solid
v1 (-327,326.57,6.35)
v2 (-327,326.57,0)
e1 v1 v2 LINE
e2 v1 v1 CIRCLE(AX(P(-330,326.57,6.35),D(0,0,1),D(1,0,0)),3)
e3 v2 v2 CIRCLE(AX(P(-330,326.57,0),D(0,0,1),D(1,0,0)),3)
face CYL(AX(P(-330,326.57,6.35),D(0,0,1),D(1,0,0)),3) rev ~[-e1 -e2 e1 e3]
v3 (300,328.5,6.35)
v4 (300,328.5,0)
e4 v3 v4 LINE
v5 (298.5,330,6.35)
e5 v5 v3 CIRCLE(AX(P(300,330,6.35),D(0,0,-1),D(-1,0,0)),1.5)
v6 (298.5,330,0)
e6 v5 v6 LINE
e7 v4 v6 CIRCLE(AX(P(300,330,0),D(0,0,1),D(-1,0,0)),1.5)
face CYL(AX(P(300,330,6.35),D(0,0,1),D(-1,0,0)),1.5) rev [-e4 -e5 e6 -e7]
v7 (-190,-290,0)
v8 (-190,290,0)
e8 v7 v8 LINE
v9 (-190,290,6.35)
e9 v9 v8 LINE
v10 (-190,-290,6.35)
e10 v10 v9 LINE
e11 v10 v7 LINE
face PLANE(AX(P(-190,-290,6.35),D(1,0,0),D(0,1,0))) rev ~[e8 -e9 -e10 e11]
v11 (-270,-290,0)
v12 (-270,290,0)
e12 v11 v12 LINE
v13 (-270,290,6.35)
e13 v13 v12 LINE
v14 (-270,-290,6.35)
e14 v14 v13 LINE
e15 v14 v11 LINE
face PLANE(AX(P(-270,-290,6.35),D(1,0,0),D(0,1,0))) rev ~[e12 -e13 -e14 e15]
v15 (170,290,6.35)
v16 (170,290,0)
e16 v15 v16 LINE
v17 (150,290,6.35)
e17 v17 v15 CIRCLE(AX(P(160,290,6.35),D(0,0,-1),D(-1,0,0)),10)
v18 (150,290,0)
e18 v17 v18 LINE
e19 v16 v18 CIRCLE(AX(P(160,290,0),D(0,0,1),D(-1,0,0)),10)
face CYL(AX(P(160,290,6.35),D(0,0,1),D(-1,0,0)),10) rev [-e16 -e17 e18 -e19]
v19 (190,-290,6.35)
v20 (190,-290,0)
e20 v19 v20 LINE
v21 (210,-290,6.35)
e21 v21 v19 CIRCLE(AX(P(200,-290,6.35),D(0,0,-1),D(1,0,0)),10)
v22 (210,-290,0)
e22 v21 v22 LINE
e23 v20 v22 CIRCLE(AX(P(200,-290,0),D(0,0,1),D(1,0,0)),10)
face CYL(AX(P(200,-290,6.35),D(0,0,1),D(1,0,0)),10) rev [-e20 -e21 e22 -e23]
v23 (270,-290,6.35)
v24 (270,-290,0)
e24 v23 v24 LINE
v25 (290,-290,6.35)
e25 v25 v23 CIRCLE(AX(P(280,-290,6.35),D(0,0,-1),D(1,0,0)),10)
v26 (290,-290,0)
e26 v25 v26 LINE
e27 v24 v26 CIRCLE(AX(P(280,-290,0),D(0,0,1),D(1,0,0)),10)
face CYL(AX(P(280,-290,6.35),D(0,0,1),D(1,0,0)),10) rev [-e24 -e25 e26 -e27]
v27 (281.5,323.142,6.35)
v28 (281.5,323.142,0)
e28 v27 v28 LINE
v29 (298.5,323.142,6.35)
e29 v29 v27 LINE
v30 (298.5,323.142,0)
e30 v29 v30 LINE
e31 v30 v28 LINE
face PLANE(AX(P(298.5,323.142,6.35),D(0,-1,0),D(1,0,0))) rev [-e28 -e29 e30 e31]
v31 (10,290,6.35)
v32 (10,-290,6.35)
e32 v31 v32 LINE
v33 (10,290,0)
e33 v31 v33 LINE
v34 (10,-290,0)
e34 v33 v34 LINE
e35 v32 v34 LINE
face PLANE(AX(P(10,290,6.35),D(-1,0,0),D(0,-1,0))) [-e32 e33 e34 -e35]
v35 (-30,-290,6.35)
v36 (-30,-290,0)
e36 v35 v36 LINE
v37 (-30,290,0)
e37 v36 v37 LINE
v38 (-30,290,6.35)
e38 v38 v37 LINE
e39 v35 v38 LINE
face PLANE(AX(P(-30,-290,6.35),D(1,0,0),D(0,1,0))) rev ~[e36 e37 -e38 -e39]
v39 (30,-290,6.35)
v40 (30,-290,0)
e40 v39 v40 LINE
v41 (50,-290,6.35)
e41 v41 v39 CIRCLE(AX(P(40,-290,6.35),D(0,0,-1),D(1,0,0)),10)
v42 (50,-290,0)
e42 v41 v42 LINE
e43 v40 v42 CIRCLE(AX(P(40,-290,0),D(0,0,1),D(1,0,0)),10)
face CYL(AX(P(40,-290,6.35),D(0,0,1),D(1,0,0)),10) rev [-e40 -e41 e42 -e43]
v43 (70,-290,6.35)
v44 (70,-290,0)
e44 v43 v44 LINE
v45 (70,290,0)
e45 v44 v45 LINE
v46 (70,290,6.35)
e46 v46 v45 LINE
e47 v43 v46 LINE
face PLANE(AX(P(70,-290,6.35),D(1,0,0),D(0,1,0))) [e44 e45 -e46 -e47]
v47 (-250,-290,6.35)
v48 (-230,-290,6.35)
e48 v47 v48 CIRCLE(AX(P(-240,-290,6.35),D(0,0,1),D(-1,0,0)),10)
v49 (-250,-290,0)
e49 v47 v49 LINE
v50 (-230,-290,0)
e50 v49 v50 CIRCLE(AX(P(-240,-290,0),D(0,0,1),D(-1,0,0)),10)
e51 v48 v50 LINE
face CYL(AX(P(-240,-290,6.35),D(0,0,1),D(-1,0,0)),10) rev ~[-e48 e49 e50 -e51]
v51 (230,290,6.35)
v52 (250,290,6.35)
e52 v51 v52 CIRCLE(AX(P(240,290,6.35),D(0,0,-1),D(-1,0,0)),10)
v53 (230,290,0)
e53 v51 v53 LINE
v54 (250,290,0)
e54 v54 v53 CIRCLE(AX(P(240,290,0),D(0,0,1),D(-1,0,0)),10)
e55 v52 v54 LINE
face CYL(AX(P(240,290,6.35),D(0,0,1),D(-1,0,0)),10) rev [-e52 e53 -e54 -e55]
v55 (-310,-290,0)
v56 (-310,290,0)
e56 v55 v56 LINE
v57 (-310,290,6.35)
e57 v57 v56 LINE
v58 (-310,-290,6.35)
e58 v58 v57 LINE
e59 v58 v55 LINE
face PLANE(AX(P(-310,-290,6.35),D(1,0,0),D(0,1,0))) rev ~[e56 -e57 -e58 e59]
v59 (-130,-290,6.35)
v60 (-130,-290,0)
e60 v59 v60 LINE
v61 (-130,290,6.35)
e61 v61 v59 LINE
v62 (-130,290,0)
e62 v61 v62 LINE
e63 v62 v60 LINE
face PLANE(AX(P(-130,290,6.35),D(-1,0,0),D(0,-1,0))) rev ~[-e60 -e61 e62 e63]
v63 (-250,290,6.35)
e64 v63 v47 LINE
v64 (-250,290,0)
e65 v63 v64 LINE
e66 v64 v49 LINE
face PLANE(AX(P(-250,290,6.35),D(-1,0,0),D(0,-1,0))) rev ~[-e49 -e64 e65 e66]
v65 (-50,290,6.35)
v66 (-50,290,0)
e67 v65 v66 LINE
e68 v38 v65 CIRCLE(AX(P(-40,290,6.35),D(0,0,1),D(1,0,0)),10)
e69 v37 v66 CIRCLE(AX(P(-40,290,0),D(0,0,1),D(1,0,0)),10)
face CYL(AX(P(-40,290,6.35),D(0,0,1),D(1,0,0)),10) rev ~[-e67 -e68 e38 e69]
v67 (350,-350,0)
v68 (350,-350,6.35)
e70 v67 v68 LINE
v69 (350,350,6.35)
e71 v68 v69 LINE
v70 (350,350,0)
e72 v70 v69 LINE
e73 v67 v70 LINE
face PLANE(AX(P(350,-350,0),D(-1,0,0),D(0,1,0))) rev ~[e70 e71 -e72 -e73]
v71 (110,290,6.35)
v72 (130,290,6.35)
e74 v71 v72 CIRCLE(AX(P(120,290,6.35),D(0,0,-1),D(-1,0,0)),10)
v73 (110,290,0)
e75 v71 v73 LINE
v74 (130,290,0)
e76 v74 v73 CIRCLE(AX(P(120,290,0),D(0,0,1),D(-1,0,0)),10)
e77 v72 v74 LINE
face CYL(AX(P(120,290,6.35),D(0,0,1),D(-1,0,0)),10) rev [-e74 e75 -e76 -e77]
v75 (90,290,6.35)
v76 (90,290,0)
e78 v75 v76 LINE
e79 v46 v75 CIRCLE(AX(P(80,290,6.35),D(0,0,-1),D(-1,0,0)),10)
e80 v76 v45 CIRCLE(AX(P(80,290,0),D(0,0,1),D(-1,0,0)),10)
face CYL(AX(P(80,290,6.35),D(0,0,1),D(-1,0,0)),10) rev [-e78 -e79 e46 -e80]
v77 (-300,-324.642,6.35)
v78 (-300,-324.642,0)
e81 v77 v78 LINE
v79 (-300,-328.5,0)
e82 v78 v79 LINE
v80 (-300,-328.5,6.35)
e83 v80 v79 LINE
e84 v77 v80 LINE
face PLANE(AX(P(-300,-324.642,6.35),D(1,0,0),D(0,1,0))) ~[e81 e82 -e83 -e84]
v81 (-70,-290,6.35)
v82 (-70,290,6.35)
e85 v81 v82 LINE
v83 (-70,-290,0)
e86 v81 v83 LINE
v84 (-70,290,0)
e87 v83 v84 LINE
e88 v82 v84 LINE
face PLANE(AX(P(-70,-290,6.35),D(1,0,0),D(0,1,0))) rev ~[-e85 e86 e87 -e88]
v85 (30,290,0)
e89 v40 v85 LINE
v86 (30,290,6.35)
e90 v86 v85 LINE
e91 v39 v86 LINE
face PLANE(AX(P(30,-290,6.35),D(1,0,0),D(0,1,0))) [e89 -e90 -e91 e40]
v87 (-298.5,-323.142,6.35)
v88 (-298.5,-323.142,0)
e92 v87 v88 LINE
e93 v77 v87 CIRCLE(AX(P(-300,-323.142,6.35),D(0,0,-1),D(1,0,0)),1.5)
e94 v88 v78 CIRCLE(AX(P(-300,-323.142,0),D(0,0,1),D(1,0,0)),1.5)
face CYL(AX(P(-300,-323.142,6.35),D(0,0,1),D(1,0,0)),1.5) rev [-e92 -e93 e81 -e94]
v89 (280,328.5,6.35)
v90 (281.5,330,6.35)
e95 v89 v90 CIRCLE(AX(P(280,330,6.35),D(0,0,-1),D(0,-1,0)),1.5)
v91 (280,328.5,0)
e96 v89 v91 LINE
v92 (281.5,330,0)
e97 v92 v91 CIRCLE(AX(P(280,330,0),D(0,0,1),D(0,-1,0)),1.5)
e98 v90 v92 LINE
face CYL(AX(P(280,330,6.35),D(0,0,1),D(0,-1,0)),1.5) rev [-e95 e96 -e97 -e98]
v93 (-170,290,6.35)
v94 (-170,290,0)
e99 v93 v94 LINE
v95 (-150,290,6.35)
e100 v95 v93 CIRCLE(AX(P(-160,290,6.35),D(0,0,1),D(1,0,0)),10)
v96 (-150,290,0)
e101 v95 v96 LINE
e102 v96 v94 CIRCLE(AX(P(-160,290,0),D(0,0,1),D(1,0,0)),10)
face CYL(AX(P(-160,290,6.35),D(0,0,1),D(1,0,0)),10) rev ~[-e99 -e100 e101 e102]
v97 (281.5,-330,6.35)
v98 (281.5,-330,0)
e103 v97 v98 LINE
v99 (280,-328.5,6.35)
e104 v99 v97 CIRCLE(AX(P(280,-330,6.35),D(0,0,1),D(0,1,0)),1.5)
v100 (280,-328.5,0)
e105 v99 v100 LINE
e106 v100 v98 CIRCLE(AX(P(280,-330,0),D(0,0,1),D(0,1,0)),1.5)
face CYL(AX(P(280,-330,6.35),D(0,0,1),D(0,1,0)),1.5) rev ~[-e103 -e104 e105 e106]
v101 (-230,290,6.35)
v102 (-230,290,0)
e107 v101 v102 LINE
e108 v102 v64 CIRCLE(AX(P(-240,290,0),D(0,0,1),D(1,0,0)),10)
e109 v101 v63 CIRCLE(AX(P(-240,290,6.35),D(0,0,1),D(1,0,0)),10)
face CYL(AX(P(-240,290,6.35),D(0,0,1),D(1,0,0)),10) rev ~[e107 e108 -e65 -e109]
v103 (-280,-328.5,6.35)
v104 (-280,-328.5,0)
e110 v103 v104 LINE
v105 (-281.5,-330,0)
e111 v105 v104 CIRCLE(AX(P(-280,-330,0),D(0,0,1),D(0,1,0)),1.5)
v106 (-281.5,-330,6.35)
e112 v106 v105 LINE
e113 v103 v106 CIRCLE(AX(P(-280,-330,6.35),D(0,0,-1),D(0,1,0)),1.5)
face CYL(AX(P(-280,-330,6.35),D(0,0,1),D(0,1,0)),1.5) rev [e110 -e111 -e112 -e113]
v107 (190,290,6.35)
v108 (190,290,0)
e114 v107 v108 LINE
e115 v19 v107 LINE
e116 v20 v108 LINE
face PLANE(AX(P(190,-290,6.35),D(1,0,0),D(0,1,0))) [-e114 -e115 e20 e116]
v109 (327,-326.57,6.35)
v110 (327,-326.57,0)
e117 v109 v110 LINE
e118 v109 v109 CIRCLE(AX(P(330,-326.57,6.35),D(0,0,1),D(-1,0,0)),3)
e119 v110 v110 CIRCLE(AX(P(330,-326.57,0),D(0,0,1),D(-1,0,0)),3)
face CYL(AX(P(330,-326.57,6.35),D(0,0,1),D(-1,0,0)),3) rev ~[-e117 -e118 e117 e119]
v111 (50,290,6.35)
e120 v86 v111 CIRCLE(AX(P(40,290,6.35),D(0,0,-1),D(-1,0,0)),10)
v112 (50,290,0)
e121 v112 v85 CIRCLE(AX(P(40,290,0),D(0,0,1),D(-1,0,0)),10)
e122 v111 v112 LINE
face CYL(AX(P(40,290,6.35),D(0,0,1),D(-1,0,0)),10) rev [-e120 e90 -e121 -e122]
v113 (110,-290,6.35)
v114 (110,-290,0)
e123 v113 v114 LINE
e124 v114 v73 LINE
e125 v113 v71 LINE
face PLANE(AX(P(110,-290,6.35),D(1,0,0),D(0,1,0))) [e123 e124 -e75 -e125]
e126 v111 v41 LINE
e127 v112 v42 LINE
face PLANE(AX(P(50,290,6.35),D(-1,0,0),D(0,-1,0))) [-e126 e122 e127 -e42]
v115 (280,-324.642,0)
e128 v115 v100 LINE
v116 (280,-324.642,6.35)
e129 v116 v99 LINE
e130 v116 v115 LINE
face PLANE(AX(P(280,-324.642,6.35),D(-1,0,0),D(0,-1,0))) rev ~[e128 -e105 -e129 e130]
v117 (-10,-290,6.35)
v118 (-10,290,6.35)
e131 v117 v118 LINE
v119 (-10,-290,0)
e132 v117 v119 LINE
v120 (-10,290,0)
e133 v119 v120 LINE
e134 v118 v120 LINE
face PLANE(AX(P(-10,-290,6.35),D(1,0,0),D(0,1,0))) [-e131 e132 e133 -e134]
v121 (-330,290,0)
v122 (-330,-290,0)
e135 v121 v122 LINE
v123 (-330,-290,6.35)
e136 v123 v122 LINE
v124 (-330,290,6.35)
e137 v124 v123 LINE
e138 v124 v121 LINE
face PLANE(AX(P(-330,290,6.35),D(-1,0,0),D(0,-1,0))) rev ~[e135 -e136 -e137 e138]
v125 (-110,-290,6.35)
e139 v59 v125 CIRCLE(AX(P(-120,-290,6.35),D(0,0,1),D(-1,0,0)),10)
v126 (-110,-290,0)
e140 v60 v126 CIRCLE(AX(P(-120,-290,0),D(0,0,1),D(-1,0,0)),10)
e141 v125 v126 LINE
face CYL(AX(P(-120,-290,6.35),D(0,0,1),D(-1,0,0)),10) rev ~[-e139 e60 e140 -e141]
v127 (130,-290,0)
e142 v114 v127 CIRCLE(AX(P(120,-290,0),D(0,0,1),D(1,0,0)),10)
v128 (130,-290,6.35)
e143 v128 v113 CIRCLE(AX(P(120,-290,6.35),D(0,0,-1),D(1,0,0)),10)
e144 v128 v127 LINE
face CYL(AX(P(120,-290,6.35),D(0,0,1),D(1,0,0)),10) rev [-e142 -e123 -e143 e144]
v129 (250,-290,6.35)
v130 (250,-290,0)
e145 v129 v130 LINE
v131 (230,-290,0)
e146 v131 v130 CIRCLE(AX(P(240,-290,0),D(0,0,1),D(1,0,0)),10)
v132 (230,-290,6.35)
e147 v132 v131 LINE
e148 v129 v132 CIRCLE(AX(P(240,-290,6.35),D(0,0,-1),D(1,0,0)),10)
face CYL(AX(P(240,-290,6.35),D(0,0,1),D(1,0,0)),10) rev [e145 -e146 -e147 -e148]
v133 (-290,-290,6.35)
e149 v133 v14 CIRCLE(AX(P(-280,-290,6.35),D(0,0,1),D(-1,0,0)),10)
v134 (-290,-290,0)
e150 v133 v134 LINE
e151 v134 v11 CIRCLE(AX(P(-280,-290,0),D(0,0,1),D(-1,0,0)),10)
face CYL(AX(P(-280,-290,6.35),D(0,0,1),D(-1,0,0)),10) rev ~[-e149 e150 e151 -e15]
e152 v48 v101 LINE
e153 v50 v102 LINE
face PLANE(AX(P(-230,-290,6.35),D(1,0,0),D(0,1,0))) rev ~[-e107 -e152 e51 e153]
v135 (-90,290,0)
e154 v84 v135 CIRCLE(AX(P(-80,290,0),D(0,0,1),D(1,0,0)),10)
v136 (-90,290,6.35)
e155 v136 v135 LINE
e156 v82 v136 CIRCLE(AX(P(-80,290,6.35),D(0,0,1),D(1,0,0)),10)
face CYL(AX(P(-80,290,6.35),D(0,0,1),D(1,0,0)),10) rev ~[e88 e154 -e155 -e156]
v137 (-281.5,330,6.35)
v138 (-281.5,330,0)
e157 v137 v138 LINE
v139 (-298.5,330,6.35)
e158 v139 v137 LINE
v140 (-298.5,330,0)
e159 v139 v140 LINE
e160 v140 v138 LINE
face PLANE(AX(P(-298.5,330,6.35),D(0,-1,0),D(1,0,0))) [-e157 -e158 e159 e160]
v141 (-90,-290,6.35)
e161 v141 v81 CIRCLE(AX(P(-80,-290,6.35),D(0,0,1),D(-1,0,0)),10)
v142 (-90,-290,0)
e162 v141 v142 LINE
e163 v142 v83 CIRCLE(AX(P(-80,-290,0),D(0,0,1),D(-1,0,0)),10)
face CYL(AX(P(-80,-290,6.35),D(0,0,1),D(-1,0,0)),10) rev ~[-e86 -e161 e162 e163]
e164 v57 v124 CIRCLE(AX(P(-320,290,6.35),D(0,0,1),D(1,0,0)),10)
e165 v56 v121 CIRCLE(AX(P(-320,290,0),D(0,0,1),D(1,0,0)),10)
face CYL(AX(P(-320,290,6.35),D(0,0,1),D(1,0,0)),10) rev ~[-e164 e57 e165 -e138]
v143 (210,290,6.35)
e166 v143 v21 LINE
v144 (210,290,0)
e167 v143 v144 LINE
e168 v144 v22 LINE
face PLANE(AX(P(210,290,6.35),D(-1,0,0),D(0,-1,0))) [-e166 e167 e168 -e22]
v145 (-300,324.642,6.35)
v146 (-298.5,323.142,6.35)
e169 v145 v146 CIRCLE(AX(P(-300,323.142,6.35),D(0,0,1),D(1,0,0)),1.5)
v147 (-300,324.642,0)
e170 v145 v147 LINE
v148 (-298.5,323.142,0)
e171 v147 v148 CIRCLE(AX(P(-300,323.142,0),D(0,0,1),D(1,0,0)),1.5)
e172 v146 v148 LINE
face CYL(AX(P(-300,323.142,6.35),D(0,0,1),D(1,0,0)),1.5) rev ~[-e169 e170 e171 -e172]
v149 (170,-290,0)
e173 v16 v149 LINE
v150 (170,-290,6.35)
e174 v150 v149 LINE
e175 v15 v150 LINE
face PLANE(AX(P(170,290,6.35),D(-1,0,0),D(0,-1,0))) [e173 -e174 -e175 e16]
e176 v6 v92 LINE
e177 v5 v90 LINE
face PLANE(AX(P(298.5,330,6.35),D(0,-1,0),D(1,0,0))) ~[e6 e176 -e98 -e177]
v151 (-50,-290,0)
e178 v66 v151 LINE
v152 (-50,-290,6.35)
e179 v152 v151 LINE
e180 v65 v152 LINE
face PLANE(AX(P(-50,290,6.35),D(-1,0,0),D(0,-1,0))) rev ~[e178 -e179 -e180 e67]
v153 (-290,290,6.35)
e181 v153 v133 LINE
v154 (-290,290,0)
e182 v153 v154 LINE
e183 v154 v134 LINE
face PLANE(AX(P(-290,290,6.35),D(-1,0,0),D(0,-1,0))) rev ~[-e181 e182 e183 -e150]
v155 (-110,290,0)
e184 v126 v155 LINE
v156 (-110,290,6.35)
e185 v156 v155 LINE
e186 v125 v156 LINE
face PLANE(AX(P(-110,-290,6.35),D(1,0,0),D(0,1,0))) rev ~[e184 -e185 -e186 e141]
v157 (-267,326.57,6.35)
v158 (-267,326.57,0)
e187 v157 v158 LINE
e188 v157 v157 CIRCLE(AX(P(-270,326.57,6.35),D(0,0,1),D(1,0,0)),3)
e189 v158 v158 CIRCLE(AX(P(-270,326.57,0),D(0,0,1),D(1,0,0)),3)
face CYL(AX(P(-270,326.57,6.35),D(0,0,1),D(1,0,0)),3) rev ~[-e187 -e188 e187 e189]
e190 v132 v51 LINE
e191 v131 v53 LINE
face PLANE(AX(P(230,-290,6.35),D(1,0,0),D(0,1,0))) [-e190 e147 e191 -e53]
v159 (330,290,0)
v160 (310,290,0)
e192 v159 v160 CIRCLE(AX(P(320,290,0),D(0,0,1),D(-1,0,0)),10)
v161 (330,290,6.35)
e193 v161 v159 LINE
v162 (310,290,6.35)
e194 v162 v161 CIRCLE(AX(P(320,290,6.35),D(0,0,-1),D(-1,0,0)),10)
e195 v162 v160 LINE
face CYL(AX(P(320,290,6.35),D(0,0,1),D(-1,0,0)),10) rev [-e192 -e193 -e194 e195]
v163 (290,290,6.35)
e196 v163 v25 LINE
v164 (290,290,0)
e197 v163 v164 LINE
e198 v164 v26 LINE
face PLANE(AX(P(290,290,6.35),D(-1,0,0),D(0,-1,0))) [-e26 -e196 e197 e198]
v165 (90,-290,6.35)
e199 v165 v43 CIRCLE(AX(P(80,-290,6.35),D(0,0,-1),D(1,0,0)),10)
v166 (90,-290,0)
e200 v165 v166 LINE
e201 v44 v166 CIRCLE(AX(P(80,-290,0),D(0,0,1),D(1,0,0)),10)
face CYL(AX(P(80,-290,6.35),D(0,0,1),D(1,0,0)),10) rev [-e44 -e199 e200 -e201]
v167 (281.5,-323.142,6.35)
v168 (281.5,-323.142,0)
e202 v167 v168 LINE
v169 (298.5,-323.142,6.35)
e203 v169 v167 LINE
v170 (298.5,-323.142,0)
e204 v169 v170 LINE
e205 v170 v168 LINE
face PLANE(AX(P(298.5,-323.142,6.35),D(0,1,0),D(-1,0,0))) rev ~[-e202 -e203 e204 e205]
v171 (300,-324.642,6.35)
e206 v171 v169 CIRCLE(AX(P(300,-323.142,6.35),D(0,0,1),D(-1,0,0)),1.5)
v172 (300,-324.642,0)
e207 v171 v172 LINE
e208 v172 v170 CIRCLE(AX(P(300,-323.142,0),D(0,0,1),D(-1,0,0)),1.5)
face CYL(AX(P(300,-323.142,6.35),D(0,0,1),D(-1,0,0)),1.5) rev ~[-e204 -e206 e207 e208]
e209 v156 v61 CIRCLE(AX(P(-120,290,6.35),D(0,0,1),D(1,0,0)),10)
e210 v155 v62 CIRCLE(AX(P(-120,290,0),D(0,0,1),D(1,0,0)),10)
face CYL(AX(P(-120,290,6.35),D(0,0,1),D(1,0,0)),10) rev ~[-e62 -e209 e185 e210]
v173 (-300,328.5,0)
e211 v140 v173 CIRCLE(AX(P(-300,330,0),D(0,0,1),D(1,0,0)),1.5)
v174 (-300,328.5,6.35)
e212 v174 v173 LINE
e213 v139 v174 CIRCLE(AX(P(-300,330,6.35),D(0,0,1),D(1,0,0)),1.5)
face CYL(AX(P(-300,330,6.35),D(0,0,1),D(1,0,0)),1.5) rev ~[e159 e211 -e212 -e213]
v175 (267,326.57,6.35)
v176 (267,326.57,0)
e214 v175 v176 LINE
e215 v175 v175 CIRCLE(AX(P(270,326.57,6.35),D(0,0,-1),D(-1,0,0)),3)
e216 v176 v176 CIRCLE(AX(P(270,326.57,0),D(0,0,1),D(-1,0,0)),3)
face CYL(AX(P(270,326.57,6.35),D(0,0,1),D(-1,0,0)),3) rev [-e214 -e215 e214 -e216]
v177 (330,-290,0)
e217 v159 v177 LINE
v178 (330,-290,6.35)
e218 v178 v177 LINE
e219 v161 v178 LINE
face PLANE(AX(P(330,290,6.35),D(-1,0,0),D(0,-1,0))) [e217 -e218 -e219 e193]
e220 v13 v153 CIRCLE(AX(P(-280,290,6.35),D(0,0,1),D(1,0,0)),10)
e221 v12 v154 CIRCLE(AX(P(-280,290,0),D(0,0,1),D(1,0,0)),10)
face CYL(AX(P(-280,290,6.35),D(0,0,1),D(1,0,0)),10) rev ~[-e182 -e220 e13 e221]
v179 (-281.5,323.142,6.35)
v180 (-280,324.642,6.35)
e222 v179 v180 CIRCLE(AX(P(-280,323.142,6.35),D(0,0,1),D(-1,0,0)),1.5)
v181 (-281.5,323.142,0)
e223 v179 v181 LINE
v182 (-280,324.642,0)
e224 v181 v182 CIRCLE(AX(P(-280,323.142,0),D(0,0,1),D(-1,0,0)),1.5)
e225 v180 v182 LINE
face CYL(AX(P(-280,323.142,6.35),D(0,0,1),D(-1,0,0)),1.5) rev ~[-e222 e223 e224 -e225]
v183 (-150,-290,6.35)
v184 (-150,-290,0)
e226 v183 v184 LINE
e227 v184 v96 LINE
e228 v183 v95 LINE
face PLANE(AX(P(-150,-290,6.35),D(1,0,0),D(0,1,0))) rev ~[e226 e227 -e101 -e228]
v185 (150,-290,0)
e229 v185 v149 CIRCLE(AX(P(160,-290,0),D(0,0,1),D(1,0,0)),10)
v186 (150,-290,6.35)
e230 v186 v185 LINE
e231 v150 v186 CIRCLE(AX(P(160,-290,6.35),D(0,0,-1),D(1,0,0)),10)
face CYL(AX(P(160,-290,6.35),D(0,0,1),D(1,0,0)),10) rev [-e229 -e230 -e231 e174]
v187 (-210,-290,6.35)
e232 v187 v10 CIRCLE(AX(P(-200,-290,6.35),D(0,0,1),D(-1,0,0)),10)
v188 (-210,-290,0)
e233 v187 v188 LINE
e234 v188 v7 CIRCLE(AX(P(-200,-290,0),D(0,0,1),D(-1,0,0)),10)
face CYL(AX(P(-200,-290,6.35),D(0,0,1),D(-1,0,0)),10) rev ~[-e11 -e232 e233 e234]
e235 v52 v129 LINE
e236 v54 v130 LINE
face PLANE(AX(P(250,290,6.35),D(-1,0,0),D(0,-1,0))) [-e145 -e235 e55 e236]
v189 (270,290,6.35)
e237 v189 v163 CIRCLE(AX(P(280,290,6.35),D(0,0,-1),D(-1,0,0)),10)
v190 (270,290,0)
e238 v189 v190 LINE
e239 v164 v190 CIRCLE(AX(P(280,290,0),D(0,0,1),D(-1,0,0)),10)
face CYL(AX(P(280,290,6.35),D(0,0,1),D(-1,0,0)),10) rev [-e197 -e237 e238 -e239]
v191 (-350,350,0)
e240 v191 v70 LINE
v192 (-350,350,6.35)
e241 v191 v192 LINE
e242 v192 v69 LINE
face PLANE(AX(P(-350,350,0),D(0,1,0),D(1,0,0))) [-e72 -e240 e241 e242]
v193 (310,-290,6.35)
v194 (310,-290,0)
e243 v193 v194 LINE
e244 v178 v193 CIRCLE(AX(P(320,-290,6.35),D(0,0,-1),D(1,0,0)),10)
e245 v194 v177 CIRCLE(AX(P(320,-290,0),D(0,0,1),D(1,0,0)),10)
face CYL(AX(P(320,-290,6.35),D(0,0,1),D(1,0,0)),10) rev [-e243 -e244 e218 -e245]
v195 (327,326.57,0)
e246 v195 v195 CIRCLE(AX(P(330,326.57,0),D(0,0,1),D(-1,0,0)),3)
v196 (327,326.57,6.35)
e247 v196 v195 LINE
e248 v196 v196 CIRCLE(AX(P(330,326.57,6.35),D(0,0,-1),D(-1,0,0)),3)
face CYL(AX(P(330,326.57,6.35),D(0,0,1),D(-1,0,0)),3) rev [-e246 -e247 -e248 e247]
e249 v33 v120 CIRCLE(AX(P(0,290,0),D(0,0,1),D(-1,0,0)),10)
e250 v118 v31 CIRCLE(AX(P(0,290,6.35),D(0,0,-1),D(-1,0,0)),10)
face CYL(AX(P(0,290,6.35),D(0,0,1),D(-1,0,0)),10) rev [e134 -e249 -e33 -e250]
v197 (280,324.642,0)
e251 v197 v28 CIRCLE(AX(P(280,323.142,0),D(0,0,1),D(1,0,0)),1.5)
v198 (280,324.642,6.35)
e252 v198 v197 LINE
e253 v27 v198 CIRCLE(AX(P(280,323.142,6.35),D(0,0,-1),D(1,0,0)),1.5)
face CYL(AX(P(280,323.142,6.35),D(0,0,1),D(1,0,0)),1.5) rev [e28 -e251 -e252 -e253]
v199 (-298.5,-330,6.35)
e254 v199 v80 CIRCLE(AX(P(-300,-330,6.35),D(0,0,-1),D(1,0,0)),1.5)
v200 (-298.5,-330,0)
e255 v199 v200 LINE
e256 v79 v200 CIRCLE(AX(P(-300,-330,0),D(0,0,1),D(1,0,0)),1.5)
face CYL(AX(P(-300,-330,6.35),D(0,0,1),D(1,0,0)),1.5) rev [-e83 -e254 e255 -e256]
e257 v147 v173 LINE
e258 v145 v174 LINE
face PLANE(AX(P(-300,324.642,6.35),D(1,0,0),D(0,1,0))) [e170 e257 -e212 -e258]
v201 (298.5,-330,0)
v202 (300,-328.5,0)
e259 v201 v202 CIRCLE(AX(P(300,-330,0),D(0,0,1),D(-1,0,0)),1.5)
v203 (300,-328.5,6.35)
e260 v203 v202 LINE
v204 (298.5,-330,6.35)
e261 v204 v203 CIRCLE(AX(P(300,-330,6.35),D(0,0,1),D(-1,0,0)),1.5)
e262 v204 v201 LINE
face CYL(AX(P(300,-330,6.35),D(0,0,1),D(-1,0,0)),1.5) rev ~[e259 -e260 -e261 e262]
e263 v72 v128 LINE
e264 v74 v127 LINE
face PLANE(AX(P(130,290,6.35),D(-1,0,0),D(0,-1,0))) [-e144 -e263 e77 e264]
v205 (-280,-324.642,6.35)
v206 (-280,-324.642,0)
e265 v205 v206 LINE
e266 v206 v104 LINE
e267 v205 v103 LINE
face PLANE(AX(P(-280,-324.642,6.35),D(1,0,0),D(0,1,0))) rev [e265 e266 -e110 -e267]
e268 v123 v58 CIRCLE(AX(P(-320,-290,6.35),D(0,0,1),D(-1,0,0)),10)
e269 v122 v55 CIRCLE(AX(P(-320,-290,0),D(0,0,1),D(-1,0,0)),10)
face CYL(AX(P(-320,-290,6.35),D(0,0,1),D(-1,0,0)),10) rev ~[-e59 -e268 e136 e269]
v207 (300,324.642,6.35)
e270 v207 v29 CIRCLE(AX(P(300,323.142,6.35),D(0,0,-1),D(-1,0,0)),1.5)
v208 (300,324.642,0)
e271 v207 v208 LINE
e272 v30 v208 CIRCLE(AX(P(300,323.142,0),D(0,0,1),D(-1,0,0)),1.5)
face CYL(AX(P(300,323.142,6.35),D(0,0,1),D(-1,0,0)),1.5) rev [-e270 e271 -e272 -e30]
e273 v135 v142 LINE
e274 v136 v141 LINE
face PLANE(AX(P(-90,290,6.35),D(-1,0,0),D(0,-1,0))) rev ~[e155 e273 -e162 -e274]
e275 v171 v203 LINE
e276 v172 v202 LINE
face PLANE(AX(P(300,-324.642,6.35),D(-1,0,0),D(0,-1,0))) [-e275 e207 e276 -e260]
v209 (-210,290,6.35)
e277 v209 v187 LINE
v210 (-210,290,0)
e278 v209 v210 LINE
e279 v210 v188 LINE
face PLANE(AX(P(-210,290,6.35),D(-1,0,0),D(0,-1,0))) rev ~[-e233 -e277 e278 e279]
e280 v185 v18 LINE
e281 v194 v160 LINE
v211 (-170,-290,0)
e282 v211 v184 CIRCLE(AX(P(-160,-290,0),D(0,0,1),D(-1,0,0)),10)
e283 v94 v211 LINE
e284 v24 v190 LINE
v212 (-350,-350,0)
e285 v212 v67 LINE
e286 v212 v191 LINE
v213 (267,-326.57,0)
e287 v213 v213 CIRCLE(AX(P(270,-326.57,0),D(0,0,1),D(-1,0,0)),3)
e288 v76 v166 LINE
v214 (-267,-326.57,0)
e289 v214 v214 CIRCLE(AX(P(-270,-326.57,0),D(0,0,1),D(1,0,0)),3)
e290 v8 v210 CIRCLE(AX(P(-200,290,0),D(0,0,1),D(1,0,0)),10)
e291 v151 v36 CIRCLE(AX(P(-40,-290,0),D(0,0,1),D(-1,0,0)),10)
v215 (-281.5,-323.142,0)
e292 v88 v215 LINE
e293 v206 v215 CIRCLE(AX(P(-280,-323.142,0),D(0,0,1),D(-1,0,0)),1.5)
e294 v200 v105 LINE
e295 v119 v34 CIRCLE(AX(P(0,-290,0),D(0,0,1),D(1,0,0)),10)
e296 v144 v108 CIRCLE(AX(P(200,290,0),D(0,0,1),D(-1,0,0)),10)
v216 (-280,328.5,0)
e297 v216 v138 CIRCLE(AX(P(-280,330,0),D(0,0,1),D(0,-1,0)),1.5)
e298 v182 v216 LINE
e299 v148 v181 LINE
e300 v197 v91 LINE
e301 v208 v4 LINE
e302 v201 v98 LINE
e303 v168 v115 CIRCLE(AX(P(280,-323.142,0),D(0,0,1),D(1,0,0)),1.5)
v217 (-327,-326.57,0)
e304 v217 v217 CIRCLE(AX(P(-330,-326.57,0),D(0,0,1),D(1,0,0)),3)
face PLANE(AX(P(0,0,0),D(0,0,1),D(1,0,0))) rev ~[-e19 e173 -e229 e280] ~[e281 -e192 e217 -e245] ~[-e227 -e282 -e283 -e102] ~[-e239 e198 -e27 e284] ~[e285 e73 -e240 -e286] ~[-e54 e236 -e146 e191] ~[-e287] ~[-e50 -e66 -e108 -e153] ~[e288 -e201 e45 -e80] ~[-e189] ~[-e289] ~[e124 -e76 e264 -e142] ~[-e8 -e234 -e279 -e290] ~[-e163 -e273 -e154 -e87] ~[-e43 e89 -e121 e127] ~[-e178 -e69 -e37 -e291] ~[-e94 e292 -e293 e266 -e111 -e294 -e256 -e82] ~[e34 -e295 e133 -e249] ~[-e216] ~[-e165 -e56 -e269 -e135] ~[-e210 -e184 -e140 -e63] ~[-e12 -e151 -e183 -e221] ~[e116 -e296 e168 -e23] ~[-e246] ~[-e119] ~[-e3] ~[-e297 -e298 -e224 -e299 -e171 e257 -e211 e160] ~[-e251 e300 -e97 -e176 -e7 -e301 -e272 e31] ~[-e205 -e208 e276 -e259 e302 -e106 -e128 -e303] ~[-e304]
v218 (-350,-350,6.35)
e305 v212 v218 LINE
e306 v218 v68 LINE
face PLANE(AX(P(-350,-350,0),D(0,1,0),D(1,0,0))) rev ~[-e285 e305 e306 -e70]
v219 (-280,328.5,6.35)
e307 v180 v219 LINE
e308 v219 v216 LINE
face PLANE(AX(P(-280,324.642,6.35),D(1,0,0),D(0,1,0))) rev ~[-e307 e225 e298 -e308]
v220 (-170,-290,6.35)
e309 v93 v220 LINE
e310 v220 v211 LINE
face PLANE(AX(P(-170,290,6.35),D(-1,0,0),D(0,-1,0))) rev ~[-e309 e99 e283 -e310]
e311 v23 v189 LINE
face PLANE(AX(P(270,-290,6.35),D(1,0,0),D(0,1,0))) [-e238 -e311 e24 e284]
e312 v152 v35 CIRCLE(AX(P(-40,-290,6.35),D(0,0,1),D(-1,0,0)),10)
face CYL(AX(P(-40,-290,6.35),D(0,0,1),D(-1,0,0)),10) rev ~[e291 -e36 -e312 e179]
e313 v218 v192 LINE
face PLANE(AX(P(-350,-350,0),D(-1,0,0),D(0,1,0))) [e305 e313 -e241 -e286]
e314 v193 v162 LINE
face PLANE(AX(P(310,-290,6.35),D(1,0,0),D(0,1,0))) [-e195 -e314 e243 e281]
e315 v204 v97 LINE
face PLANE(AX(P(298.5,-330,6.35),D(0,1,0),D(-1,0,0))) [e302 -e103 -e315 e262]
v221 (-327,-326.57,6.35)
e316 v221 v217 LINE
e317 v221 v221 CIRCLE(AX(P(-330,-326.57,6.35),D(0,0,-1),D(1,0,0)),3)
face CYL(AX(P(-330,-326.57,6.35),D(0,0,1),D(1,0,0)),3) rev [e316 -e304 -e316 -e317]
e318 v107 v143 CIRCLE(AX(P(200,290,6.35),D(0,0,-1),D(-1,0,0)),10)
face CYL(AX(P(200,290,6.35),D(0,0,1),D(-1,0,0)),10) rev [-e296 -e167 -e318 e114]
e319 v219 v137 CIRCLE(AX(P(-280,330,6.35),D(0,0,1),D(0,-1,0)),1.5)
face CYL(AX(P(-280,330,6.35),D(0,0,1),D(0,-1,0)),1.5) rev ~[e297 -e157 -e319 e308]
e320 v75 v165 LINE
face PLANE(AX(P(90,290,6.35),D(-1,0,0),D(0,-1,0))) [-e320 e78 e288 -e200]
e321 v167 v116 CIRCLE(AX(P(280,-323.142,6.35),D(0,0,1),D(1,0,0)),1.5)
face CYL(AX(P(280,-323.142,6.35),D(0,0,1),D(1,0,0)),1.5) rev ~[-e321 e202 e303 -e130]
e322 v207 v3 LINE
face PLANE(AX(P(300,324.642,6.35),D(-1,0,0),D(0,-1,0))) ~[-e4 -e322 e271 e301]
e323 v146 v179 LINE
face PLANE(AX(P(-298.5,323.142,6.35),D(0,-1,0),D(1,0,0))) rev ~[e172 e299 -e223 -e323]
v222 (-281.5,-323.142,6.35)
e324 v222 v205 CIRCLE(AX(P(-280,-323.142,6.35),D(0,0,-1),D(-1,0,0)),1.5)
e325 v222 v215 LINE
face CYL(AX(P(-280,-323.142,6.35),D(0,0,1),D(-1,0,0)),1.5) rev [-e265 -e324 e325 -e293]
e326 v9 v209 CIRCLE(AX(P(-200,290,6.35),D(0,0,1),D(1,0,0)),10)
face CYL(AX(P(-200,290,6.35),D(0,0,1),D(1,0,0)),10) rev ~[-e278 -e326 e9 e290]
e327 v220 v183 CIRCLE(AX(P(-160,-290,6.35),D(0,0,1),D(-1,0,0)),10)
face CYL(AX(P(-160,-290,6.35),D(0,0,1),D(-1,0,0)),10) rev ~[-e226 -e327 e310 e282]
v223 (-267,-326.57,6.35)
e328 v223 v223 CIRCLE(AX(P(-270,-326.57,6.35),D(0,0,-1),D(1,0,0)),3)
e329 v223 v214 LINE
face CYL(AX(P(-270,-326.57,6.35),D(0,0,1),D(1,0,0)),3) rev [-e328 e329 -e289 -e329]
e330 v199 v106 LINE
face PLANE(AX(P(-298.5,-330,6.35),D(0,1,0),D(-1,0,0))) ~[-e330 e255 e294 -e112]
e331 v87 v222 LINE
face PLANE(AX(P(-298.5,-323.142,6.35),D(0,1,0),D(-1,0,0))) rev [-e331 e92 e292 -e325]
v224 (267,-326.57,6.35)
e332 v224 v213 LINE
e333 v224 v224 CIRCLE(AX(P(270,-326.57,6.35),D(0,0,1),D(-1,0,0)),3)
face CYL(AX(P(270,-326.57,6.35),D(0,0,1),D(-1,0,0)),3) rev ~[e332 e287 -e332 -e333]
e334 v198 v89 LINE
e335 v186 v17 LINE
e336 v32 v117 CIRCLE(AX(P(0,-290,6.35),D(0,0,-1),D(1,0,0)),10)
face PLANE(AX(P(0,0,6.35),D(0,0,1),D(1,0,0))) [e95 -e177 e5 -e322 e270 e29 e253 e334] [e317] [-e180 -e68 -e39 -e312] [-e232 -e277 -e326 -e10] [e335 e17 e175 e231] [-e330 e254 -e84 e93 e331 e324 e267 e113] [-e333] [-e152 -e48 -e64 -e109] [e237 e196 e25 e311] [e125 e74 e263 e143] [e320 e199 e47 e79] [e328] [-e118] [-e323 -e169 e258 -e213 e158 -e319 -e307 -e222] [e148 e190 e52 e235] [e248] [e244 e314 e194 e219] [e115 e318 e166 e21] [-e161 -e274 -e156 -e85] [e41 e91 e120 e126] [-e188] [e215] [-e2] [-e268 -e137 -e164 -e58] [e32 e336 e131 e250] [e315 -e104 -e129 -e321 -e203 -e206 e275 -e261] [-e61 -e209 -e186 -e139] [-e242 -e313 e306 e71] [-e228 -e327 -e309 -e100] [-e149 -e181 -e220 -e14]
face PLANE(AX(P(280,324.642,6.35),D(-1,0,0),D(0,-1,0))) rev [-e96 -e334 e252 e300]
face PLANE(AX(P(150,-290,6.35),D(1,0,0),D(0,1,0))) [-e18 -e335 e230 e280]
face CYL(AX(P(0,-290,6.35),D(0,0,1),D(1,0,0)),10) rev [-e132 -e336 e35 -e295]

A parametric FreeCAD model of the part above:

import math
import FreeCAD as App
import Part
import Sketcher

V = App.Vector
Q = App.Units.Quantity

doc = App.newDocument("Part")
body = doc.addObject("PartDesign::Body", "Body")

sketch1 = body.newObject("Sketcher::SketchObject", "Sketch")
sketch1.AttachmentSupport = (doc.getObject("XY_Plane"), [""])
sketch1.MapMode = "FlatFace"
sketch1.addGeometry([
    Part.LineSegment(V(-350, 350, 0), V(-350, -350, 0)),
    Part.LineSegment(V(-350, -350, 0), V(350, -350, 0)),
    Part.LineSegment(V(350, -350, 0), V(350, 350, 0)),
    Part.LineSegment(V(350, 350, 0), V(-350, 350, 0)),
], False)
sketch1.addConstraint([
    Sketcher.Constraint("Coincident", 0, 2, 1, 1),
    Sketcher.Constraint("Coincident", 1, 2, 2, 1),
    Sketcher.Constraint("Coincident", 2, 2, 3, 1),
    Sketcher.Constraint("Coincident", 3, 2, 0, 1),
    Sketcher.Constraint("Vertical", 0),
    Sketcher.Constraint("Horizontal", 1),
    Sketcher.Constraint("Vertical", 2),
    Sketcher.Constraint("Horizontal", 3),
    Sketcher.Constraint("Symmetric", 0, 2, 2, 2, -1, 1),
    Sketcher.Constraint("Equal", 3, 0),
    Sketcher.Constraint("DistanceX", 1, 1, 1, 2, Q("700 mm")),
])
pad1 = body.newObject("PartDesign::Pad", "Pad")
pad1.Profile = sketch1
pad1.Length = 6.35

sketch2 = body.newObject("Sketcher::SketchObject", "Sketch001")
sketch2.AttachmentSupport = (doc.getObject("XY_Plane"), [""])
sketch2.MapMode = "FlatFace"
sketch2.AttachmentOffset = App.Placement(V(0, 0, 6.35), App.Rotation())
sketch2.addGeometry([
    Part.LineSegment(V(-300, 328.5, 0), V(-300, 324.6, 0)),
    Part.ArcOfCircle(Part.Circle(V(-300, 323.1, 0), V(0, 0, 1), 1.5), math.radians(90), math.radians(360)),
    Part.LineSegment(V(-298.5, 323.1, 0), V(-281.5, 323.1, 0)),
    Part.ArcOfCircle(Part.Circle(V(-280, 323.1, 0), V(0, 0, 1), 1.5), math.radians(180), math.radians(450)),
    Part.LineSegment(V(-280, 324.6, 0), V(-280, 328.5, 0)),
    Part.ArcOfCircle(Part.Circle(V(-280, 330, 0), V(0, 0, 1), 1.5), math.radians(-90), math.radians(180)),
    Part.LineSegment(V(-281.5, 330, 0), V(-298.5, 330, 0)),
    Part.ArcOfCircle(Part.Circle(V(-300, 330, 0), V(0, 0, 1), 1.5), math.radians(0), math.radians(270)),
    Part.Circle(V(-330, 326.6, 0), V(0, 0, 1), 3),
    Part.Circle(V(-270, 326.6, 0), V(0, 0, 1), 3),
], False)
sketch2.addConstraint([
    Sketcher.Constraint("Coincident", 0, 2, 1, 1),
    Sketcher.Constraint("Coincident", 1, 2, 2, 1),
    Sketcher.Constraint("Coincident", 2, 2, 3, 1),
    Sketcher.Constraint("Coincident", 3, 2, 4, 1),
    Sketcher.Constraint("Coincident", 4, 2, 5, 1),
    Sketcher.Constraint("Coincident", 5, 2, 6, 1),
    Sketcher.Constraint("Coincident", 6, 2, 7, 1),
    Sketcher.Constraint("Coincident", 7, 2, 0, 1),
    Sketcher.Constraint("Vertical", 0),
    Sketcher.Constraint("Horizontal", 2),
    Sketcher.Constraint("Vertical", 4),
    Sketcher.Constraint("Horizontal", 6),
    Sketcher.Constraint("Equal", 1, 3),
    Sketcher.Constraint("Equal", 3, 5),
    Sketcher.Constraint("Equal", 5, 7),
    Sketcher.Constraint("Equal", 8, 9),
    Sketcher.Constraint("Horizontal", 1, 3, 3, 3),
    Sketcher.Constraint("Horizontal", 5, 3, 7, 3),
    Sketcher.Constraint("Horizontal", 8, 3, 9, 3),
    Sketcher.Constraint("Horizontal", 3, 3, 1, 2),
    Sketcher.Constraint("Horizontal", 7, 3, 5, 2),
    Sketcher.Constraint("Vertical", 3, 3, 5, 3),
    Sketcher.Constraint("Vertical", 1, 3, 7, 3),
    Sketcher.Constraint("Vertical", 7, 3, 0, 2),
    Sketcher.Constraint("Vertical", 5, 3, 3, 2),
    Sketcher.Constraint("Diameter", 8, Q("6 mm")),
    Sketcher.Constraint("Radius", 1, Q("1.5 mm")),
    Sketcher.Constraint("DistanceX", 2, 1, 2, 2, Q("17 mm")),
    Sketcher.Constraint("DistanceX", 1, 3, -1, 1, Q("300 mm")),
    Sketcher.Constraint("DistanceY", -1, 1, 5, 3, Q("330 mm")),
    Sketcher.Constraint("DistanceX", 8, 3, -1, 1, Q("330 mm")),
    Sketcher.Constraint("DistanceX", 9, 3, -1, 1, Q("270 mm")),
    Sketcher.Constraint("DistanceY", 0, 2, 0, 1, Q("3.858 mm")),
    Sketcher.Constraint("DistanceY", -1, 1, 8, 3, Q("326.57 mm")),
])
pocket1 = body.newObject("PartDesign::Pocket", "Pocket")
pocket1.Profile = sketch2
pocket1.Type = "ThroughAll"
doc.recompute()

mirrored = body.newObject("PartDesign::Mirrored", "Mirrored")
mirrored.Originals = [pocket1]
mirrored.MirrorPlane = (doc.getObject("XZ_Plane"), [""])
body.Tip = mirrored
doc.recompute()

mirrored2 = body.newObject("PartDesign::Mirrored", "Mirrored001")
mirrored2.Originals = [pocket1]
mirrored2.MirrorPlane = (doc.getObject("YZ_Plane"), [""])
body.Tip = mirrored2

sketch3 = body.newObject("Sketcher::SketchObject", "Sketch002")
sketch3.AttachmentSupport = (doc.getObject("XY_Plane"), [""])
sketch3.MapMode = "FlatFace"
sketch3.AttachmentOffset = App.Placement(V(0, 0, 6.35), App.Rotation())
sketch3.addGeometry([
    Part.LineSegment(V(300, -328.5, 0), V(300, -324.6, 0)),
    Part.ArcOfCircle(Part.Circle(V(300, -323.1, 0), V(0, 0, 1), 1.5), math.radians(-90), math.radians(180)),
    Part.LineSegment(V(298.5, -323.1, 0), V(281.5, -323.1, 0)),
    Part.ArcOfCircle(Part.Circle(V(280, -323.1, 0), V(0, 0, 1), 1.5), math.radians(0), math.radians(270)),
    Part.LineSegment(V(280, -324.6, 0), V(280, -328.5, 0)),
    Part.ArcOfCircle(Part.Circle(V(280, -330, 0), V(0, 0, 1), 1.5), math.radians(90), math.radians(360)),
    Part.LineSegment(V(281.5, -330, 0), V(298.5, -330, 0)),
    Part.ArcOfCircle(Part.Circle(V(300, -330, 0), V(0, 0, 1), 1.5), math.radians(180), math.radians(450)),
    Part.Circle(V(330, -326.6, 0), V(0, 0, 1), 3),
    Part.Circle(V(270, -326.6, 0), V(0, 0, 1), 3),
], False)
sketch3.addConstraint([
    Sketcher.Constraint("Coincident", 0, 2, 1, 1),
    Sketcher.Constraint("Coincident", 1, 2, 2, 1),
    Sketcher.Constraint("Coincident", 2, 2, 3, 1),
    Sketcher.Constraint("Coincident", 3, 2, 4, 1),
    Sketcher.Constraint("Coincident", 4, 2, 5, 1),
    Sketcher.Constraint("Coincident", 5, 2, 6, 1),
    Sketcher.Constraint("Coincident", 6, 2, 7, 1),
    Sketcher.Constraint("Coincident", 7, 2, 0, 1),
    Sketcher.Constraint("Vertical", 0),
    Sketcher.Constraint("Horizontal", 2),
    Sketcher.Constraint("Vertical", 4),
    Sketcher.Constraint("Horizontal", 6),
    Sketcher.Constraint("Equal", 1, 3),
    Sketcher.Constraint("Equal", 3, 5),
    Sketcher.Constraint("Equal", 5, 7),
    Sketcher.Constraint("Equal", 8, 9),
    Sketcher.Constraint("Horizontal", 1, 3, 3, 3),
    Sketcher.Constraint("Horizontal", 5, 3, 7, 3),
    Sketcher.Constraint("Horizontal", 8, 3, 9, 3),
    Sketcher.Constraint("Horizontal", 3, 3, 1, 2),
    Sketcher.Constraint("Horizontal", 7, 3, 5, 2),
    Sketcher.Constraint("Vertical", 3, 3, 5, 3),
    Sketcher.Constraint("Vertical", 1, 3, 7, 3),
    Sketcher.Constraint("Vertical", 7, 3, 0, 2),
    Sketcher.Constraint("Vertical", 5, 3, 3, 2),
    Sketcher.Constraint("Diameter", 8, Q("6 mm")),
    Sketcher.Constraint("Radius", 1, Q("1.5 mm")),
    Sketcher.Constraint("DistanceX", 2, 2, 2, 1, Q("17 mm")),
    Sketcher.Constraint("DistanceX", -1, 1, 1, 3, Q("300 mm")),
    Sketcher.Constraint("DistanceY", 5, 3, -1, 1, Q("330 mm")),
    Sketcher.Constraint("DistanceX", -1, 1, 8, 3, Q("330 mm")),
    Sketcher.Constraint("DistanceX", -1, 1, 9, 3, Q("270 mm")),
    Sketcher.Constraint("DistanceY", 0, 1, 0, 2, Q("3.858 mm")),
    Sketcher.Constraint("DistanceY", 8, 3, -1, 1, Q("326.57 mm")),
])
pocket2 = body.newObject("PartDesign::Pocket", "Pocket001")
pocket2.Profile = sketch3
pocket2.Type = "ThroughAll"

sketch4 = body.newObject("Sketcher::SketchObject", "Sketch003")
sketch4.AttachmentSupport = (doc.getObject("XY_Plane"), [""])
sketch4.MapMode = "FlatFace"
sketch4.AttachmentOffset = App.Placement(V(0, 0, 6.35), App.Rotation())
sketch4.addGeometry([
    Part.LineSegment(V(10, -290, 0), V(10, 290, 0)),
    Part.ArcOfCircle(Part.Circle(V(0, 290, 0), V(0, 0, 1), 10), math.radians(0), math.radians(180)),
    Part.LineSegment(V(-10, 290, 0), V(-10, -290, 0)),
    Part.ArcOfCircle(Part.Circle(V(0, -290, 0), V(0, 0, 1), 10), math.radians(180), math.radians(360)),
], False)
sketch4.addConstraint([
    Sketcher.Constraint("Tangent", 0, 2, 1, 1),
    Sketcher.Constraint("Tangent", 1, 2, 2, 1),
    Sketcher.Constraint("Tangent", 2, 2, 3, 1),
    Sketcher.Constraint("Tangent", 3, 2, 0, 1),
    Sketcher.Constraint("Vertical", 0),
    Sketcher.Constraint("Vertical", 2),
    Sketcher.Constraint("Symmetric", 1, 3, 3, 3, -1, 1),
    Sketcher.Constraint("Radius", 1, Q("10 mm")),
    Sketcher.Constraint("DistanceY", 0, 1, 0, 2, Q("580 mm")),
])
pocket3 = body.newObject("PartDesign::Pocket", "Pocket002")
pocket3.Profile = sketch4
pocket3.Type = "ThroughAll"
doc.recompute()

linearpattern = body.newObject("PartDesign::LinearPattern", "LinearPattern")
linearpattern.Originals = [pocket3]
linearpattern.Direction = (doc.getObject("X_Axis"), [""])
linearpattern.Mode = "offset"
linearpattern.Offset = 40
linearpattern.Occurrences = 9
body.Tip = linearpattern

sketch5 = body.newObject("Sketcher::SketchObject", "Sketch004")
sketch5.AttachmentSupport = (doc.getObject("XY_Plane"), [""])
sketch5.MapMode = "FlatFace"
sketch5.AttachmentOffset = App.Placement(V(0, 0, 6.35), App.Rotation())
sketch5.addGeometry([
    Part.LineSegment(V(-50, 290, 0), V(-50, -290, 0)),
    Part.ArcOfCircle(Part.Circle(V(-40, -290, 0), V(0, 0, 1), 10), math.radians(180), math.radians(360)),
    Part.LineSegment(V(-30, -290, 0), V(-30, 290, 0)),
    Part.ArcOfCircle(Part.Circle(V(-40, 290, 0), V(0, 0, 1), 10), math.radians(0), math.radians(180)),
], False)
sketch5.addConstraint([
    Sketcher.Constraint("Tangent", 0, 2, 1, 1),
    Sketcher.Constraint("Tangent", 1, 2, 2, 1),
    Sketcher.Constraint("Tangent", 2, 2, 3, 1),
    Sketcher.Constraint("Tangent", 3, 2, 0, 1),
    Sketcher.Constraint("Vertical", 0),
    Sketcher.Constraint("Vertical", 2),
    Sketcher.Constraint("Radius", 1, Q("10 mm")),
    Sketcher.Constraint("DistanceY", 0, 2, 0, 1, Q("580 mm")),
    Sketcher.Constraint("DistanceX", 1, 3, -1, 1, Q("40 mm")),
    Sketcher.Constraint("DistanceY", 1, 3, -1, 1, Q("290 mm")),
])
pocket4 = body.newObject("PartDesign::Pocket", "Pocket003")
pocket4.Profile = sketch5
pocket4.Type = "ThroughAll"

sketch6 = body.newObject("Sketcher::SketchObject", "Sketch005")
sketch6.AttachmentSupport = (doc.getObject("XY_Plane"), [""])
sketch6.MapMode = "FlatFace"
sketch6.AttachmentOffset = App.Placement(V(0, 0, 6.35), App.Rotation())
sketch6.addGeometry([
    Part.LineSegment(V(-90, 290, 0), V(-90, -290, 0)),
    Part.ArcOfCircle(Part.Circle(V(-80, -290, 0), V(0, 0, 1), 10), math.radians(180), math.radians(360)),
    Part.LineSegment(V(-70, -290, 0), V(-70, 290, 0)),
    Part.ArcOfCircle(Part.Circle(V(-80, 290, 0), V(0, 0, 1), 10), math.radians(0), math.radians(180)),
], False)
sketch6.addConstraint([
    Sketcher.Constraint("Tangent", 0, 2, 1, 1),
    Sketcher.Constraint("Tangent", 1, 2, 2, 1),
    Sketcher.Constraint("Tangent", 2, 2, 3, 1),
    Sketcher.Constraint("Tangent", 3, 2, 0, 1),
    Sketcher.Constraint("Vertical", 0),
    Sketcher.Constraint("Vertical", 2),
    Sketcher.Constraint("Radius", 1, Q("10 mm")),
    Sketcher.Constraint("DistanceY", 0, 2, 0, 1, Q("580 mm")),
    Sketcher.Constraint("DistanceX", 1, 3, -1, 1, Q("80 mm")),
    Sketcher.Constraint("DistanceY", 1, 3, -1, 1, Q("290 mm")),
])
pocket5 = body.newObject("PartDesign::Pocket", "Pocket004")
pocket5.Profile = sketch6
pocket5.Type = "ThroughAll"

sketch7 = body.newObject("Sketcher::SketchObject", "Sketch006")
sketch7.AttachmentSupport = (doc.getObject("XY_Plane"), [""])
sketch7.MapMode = "FlatFace"
sketch7.AttachmentOffset = App.Placement(V(0, 0, 6.35), App.Rotation())
sketch7.addGeometry([
    Part.LineSegment(V(-130, 290, 0), V(-130, -290, 0)),
    Part.ArcOfCircle(Part.Circle(V(-120, -290, 0), V(0, 0, 1), 10), math.radians(180), math.radians(360)),
    Part.LineSegment(V(-110, -290, 0), V(-110, 290, 0)),
    Part.ArcOfCircle(Part.Circle(V(-120, 290, 0), V(0, 0, 1), 10), math.radians(0), math.radians(180)),
], False)
sketch7.addConstraint([
    Sketcher.Constraint("Tangent", 0, 2, 1, 1),
    Sketcher.Constraint("Tangent", 1, 2, 2, 1),
    Sketcher.Constraint("Tangent", 2, 2, 3, 1),
    Sketcher.Constraint("Tangent", 3, 2, 0, 1),
    Sketcher.Constraint("Vertical", 0),
    Sketcher.Constraint("Vertical", 2),
    Sketcher.Constraint("Radius", 1, Q("10 mm")),
    Sketcher.Constraint("DistanceY", 0, 2, 0, 1, Q("580 mm")),
    Sketcher.Constraint("DistanceX", 1, 3, -1, 1, Q("120 mm")),
    Sketcher.Constraint("DistanceY", 1, 3, -1, 1, Q("290 mm")),
])
pocket6 = body.newObject("PartDesign::Pocket", "Pocket005")
pocket6.Profile = sketch7
pocket6.Type = "ThroughAll"

sketch8 = body.newObject("Sketcher::SketchObject", "Sketch007")
sketch8.AttachmentSupport = (doc.getObject("XY_Plane"), [""])
sketch8.MapMode = "FlatFace"
sketch8.AttachmentOffset = App.Placement(V(0, 0, 6.35), App.Rotation())
sketch8.addGeometry([
    Part.LineSegment(V(-170, 290, 0), V(-170, -290, 0)),
    Part.ArcOfCircle(Part.Circle(V(-160, -290, 0), V(0, 0, 1), 10), math.radians(180), math.radians(360)),
    Part.LineSegment(V(-150, -290, 0), V(-150, 290, 0)),
    Part.ArcOfCircle(Part.Circle(V(-160, 290, 0), V(0, 0, 1), 10), math.radians(0), math.radians(180)),
], False)
sketch8.addConstraint([
    Sketcher.Constraint("Tangent", 0, 2, 1, 1),
    Sketcher.Constraint("Tangent", 1, 2, 2, 1),
    Sketcher.Constraint("Tangent", 2, 2, 3, 1),
    Sketcher.Constraint("Tangent", 3, 2, 0, 1),
    Sketcher.Constraint("Vertical", 0),
    Sketcher.Constraint("Vertical", 2),
    Sketcher.Constraint("Radius", 1, Q("10 mm")),
    Sketcher.Constraint("DistanceY", 0, 2, 0, 1, Q("580 mm")),
    Sketcher.Constraint("DistanceX", 1, 3, -1, 1, Q("160 mm")),
    Sketcher.Constraint("DistanceY", 1, 3, -1, 1, Q("290 mm")),
])
pocket7 = body.newObject("PartDesign::Pocket", "Pocket006")
pocket7.Profile = sketch8
pocket7.Type = "ThroughAll"

sketch9 = body.newObject("Sketcher::SketchObject", "Sketch008")
sketch9.AttachmentSupport = (doc.getObject("XY_Plane"), [""])
sketch9.MapMode = "FlatFace"
sketch9.AttachmentOffset = App.Placement(V(0, 0, 6.35), App.Rotation())
sketch9.addGeometry([
    Part.LineSegment(V(-210, 290, 0), V(-210, -290, 0)),
    Part.ArcOfCircle(Part.Circle(V(-200, -290, 0), V(0, 0, 1), 10), math.radians(180), math.radians(360)),
    Part.LineSegment(V(-190, -290, 0), V(-190, 290, 0)),
    Part.ArcOfCircle(Part.Circle(V(-200, 290, 0), V(0, 0, 1), 10), math.radians(0), math.radians(180)),
], False)
sketch9.addConstraint([
    Sketcher.Constraint("Tangent", 0, 2, 1, 1),
    Sketcher.Constraint("Tangent", 1, 2, 2, 1),
    Sketcher.Constraint("Tangent", 2, 2, 3, 1),
    Sketcher.Constraint("Tangent", 3, 2, 0, 1),
    Sketcher.Constraint("Vertical", 0),
    Sketcher.Constraint("Vertical", 2),
    Sketcher.Constraint("Radius", 1, Q("10 mm")),
    Sketcher.Constraint("DistanceY", 0, 2, 0, 1, Q("580 mm")),
    Sketcher.Constraint("DistanceX", 1, 3, -1, 1, Q("200 mm")),
    Sketcher.Constraint("DistanceY", 1, 3, -1, 1, Q("290 mm")),
])
pocket8 = body.newObject("PartDesign::Pocket", "Pocket007")
pocket8.Profile = sketch9
pocket8.Type = "ThroughAll"

sketch10 = body.newObject("Sketcher::SketchObject", "Sketch009")
sketch10.AttachmentSupport = (doc.getObject("XY_Plane"), [""])
sketch10.MapMode = "FlatFace"
sketch10.AttachmentOffset = App.Placement(V(0, 0, 6.35), App.Rotation())
sketch10.addGeometry([
    Part.LineSegment(V(-250, 290, 0), V(-250, -290, 0)),
    Part.ArcOfCircle(Part.Circle(V(-240, -290, 0), V(0, 0, 1), 10), math.radians(180), math.radians(360)),
    Part.LineSegment(V(-230, -290, 0), V(-230, 290, 0)),
    Part.ArcOfCircle(Part.Circle(V(-240, 290, 0), V(0, 0, 1), 10), math.radians(0), math.radians(180)),
], False)
sketch10.addConstraint([
    Sketcher.Constraint("Tangent", 0, 2, 1, 1),
    Sketcher.Constraint("Tangent", 1, 2, 2, 1),
    Sketcher.Constraint("Tangent", 2, 2, 3, 1),
    Sketcher.Constraint("Tangent", 3, 2, 0, 1),
    Sketcher.Constraint("Vertical", 0),
    Sketcher.Constraint("Vertical", 2),
    Sketcher.Constraint("Radius", 1, Q("10 mm")),
    Sketcher.Constraint("DistanceY", 0, 2, 0, 1, Q("580 mm")),
    Sketcher.Constraint("DistanceX", 1, 3, -1, 1, Q("240 mm")),
    Sketcher.Constraint("DistanceY", 1, 3, -1, 1, Q("290 mm")),
])
pocket9 = body.newObject("PartDesign::Pocket", "Pocket008")
pocket9.Profile = sketch10
pocket9.Type = "ThroughAll"

sketch11 = body.newObject("Sketcher::SketchObject", "Sketch010")
sketch11.AttachmentSupport = (doc.getObject("XY_Plane"), [""])
sketch11.MapMode = "FlatFace"
sketch11.AttachmentOffset = App.Placement(V(0, 0, 6.35), App.Rotation())
sketch11.addGeometry([
    Part.LineSegment(V(-290, 290, 0), V(-290, -290, 0)),
    Part.ArcOfCircle(Part.Circle(V(-280, -290, 0), V(0, 0, 1), 10), math.radians(180), math.radians(360)),
    Part.LineSegment(V(-270, -290, 0), V(-270, 290, 0)),
    Part.ArcOfCircle(Part.Circle(V(-280, 290, 0), V(0, 0, 1), 10), math.radians(0), math.radians(180)),
], False)
sketch11.addConstraint([
    Sketcher.Constraint("Tangent", 0, 2, 1, 1),
    Sketcher.Constraint("Tangent", 1, 2, 2, 1),
    Sketcher.Constraint("Tangent", 2, 2, 3, 1),
    Sketcher.Constraint("Tangent", 3, 2, 0, 1),
    Sketcher.Constraint("Vertical", 0),
    Sketcher.Constraint("Vertical", 2),
    Sketcher.Constraint("Radius", 1, Q("10 mm")),
    Sketcher.Constraint("DistanceY", 0, 2, 0, 1, Q("580 mm")),
    Sketcher.Constraint("DistanceX", 1, 3, -1, 1, Q("280 mm")),
    Sketcher.Constraint("DistanceY", 1, 3, -1, 1, Q("290 mm")),
])
pocket10 = body.newObject("PartDesign::Pocket", "Pocket009")
pocket10.Profile = sketch11
pocket10.Type = "ThroughAll"

sketch12 = body.newObject("Sketcher::SketchObject", "Sketch011")
sketch12.AttachmentSupport = (doc.getObject("XY_Plane"), [""])
sketch12.MapMode = "FlatFace"
sketch12.AttachmentOffset = App.Placement(V(0, 0, 6.35), App.Rotation())
sketch12.addGeometry([
    Part.LineSegment(V(-330, 290, 0), V(-330, -290, 0)),
    Part.ArcOfCircle(Part.Circle(V(-320, -290, 0), V(0, 0, 1), 10), math.radians(180), math.radians(360)),
    Part.LineSegment(V(-310, -290, 0), V(-310, 290, 0)),
    Part.ArcOfCircle(Part.Circle(V(-320, 290, 0), V(0, 0, 1), 10), math.radians(0), math.radians(180)),
], False)
sketch12.addConstraint([
    Sketcher.Constraint("Tangent", 0, 2, 1, 1),
    Sketcher.Constraint("Tangent", 1, 2, 2, 1),
    Sketcher.Constraint("Tangent", 2, 2, 3, 1),
    Sketcher.Constraint("Tangent", 3, 2, 0, 1),
    Sketcher.Constraint("Vertical", 0),
    Sketcher.Constraint("Vertical", 2),
    Sketcher.Constraint("Radius", 1, Q("10 mm")),
    Sketcher.Constraint("DistanceY", 0, 2, 0, 1, Q("580 mm")),
    Sketcher.Constraint("DistanceX", 1, 3, -1, 1, Q("320 mm")),
    Sketcher.Constraint("DistanceY", 1, 3, -1, 1, Q("290 mm")),
])
pocket11 = body.newObject("PartDesign::Pocket", "Pocket010")
pocket11.Profile = sketch12
pocket11.Type = "ThroughAll"

sketch13 = body.newObject("Sketcher::SketchObject", "Sketch012")
sketch13.AttachmentSupport = (doc.getObject("XY_Plane"), [""])
sketch13.MapMode = "FlatFace"
sketch13.AttachmentOffset = App.Placement(V(0, 0, 6.35), App.Rotation())
sketch13.addGeometry([
    Part.LineSegment(V(-10, 290, 0), V(-10, -290, 0)),
    Part.ArcOfCircle(Part.Circle(V(0, -290, 0), V(0, 0, 1), 10), math.radians(180), math.radians(360)),
    Part.LineSegment(V(10, -290, 0), V(10, 290, 0)),
    Part.ArcOfCircle(Part.Circle(V(0, 290, 0), V(0, 0, 1), 10), math.radians(0), math.radians(180)),
], False)
sketch13.addConstraint([
    Sketcher.Constraint("Tangent", 0, 2, 1, 1),
    Sketcher.Constraint("Tangent", 1, 2, 2, 1),
    Sketcher.Constraint("Tangent", 2, 2, 3, 1),
    Sketcher.Constraint("Tangent", 3, 2, 0, 1),
    Sketcher.Constraint("Vertical", 0),
    Sketcher.Constraint("Vertical", 2),
    Sketcher.Constraint("Symmetric", 1, 3, 3, 3, -1, 1),
    Sketcher.Constraint("Radius", 1, Q("10 mm")),
    Sketcher.Constraint("DistanceY", 0, 2, 0, 1, Q("580 mm")),
])
pocket12 = body.newObject("PartDesign::Pocket", "Pocket011")
pocket12.Profile = sketch13
pocket12.Type = "ThroughAll"

doc.recompute()
